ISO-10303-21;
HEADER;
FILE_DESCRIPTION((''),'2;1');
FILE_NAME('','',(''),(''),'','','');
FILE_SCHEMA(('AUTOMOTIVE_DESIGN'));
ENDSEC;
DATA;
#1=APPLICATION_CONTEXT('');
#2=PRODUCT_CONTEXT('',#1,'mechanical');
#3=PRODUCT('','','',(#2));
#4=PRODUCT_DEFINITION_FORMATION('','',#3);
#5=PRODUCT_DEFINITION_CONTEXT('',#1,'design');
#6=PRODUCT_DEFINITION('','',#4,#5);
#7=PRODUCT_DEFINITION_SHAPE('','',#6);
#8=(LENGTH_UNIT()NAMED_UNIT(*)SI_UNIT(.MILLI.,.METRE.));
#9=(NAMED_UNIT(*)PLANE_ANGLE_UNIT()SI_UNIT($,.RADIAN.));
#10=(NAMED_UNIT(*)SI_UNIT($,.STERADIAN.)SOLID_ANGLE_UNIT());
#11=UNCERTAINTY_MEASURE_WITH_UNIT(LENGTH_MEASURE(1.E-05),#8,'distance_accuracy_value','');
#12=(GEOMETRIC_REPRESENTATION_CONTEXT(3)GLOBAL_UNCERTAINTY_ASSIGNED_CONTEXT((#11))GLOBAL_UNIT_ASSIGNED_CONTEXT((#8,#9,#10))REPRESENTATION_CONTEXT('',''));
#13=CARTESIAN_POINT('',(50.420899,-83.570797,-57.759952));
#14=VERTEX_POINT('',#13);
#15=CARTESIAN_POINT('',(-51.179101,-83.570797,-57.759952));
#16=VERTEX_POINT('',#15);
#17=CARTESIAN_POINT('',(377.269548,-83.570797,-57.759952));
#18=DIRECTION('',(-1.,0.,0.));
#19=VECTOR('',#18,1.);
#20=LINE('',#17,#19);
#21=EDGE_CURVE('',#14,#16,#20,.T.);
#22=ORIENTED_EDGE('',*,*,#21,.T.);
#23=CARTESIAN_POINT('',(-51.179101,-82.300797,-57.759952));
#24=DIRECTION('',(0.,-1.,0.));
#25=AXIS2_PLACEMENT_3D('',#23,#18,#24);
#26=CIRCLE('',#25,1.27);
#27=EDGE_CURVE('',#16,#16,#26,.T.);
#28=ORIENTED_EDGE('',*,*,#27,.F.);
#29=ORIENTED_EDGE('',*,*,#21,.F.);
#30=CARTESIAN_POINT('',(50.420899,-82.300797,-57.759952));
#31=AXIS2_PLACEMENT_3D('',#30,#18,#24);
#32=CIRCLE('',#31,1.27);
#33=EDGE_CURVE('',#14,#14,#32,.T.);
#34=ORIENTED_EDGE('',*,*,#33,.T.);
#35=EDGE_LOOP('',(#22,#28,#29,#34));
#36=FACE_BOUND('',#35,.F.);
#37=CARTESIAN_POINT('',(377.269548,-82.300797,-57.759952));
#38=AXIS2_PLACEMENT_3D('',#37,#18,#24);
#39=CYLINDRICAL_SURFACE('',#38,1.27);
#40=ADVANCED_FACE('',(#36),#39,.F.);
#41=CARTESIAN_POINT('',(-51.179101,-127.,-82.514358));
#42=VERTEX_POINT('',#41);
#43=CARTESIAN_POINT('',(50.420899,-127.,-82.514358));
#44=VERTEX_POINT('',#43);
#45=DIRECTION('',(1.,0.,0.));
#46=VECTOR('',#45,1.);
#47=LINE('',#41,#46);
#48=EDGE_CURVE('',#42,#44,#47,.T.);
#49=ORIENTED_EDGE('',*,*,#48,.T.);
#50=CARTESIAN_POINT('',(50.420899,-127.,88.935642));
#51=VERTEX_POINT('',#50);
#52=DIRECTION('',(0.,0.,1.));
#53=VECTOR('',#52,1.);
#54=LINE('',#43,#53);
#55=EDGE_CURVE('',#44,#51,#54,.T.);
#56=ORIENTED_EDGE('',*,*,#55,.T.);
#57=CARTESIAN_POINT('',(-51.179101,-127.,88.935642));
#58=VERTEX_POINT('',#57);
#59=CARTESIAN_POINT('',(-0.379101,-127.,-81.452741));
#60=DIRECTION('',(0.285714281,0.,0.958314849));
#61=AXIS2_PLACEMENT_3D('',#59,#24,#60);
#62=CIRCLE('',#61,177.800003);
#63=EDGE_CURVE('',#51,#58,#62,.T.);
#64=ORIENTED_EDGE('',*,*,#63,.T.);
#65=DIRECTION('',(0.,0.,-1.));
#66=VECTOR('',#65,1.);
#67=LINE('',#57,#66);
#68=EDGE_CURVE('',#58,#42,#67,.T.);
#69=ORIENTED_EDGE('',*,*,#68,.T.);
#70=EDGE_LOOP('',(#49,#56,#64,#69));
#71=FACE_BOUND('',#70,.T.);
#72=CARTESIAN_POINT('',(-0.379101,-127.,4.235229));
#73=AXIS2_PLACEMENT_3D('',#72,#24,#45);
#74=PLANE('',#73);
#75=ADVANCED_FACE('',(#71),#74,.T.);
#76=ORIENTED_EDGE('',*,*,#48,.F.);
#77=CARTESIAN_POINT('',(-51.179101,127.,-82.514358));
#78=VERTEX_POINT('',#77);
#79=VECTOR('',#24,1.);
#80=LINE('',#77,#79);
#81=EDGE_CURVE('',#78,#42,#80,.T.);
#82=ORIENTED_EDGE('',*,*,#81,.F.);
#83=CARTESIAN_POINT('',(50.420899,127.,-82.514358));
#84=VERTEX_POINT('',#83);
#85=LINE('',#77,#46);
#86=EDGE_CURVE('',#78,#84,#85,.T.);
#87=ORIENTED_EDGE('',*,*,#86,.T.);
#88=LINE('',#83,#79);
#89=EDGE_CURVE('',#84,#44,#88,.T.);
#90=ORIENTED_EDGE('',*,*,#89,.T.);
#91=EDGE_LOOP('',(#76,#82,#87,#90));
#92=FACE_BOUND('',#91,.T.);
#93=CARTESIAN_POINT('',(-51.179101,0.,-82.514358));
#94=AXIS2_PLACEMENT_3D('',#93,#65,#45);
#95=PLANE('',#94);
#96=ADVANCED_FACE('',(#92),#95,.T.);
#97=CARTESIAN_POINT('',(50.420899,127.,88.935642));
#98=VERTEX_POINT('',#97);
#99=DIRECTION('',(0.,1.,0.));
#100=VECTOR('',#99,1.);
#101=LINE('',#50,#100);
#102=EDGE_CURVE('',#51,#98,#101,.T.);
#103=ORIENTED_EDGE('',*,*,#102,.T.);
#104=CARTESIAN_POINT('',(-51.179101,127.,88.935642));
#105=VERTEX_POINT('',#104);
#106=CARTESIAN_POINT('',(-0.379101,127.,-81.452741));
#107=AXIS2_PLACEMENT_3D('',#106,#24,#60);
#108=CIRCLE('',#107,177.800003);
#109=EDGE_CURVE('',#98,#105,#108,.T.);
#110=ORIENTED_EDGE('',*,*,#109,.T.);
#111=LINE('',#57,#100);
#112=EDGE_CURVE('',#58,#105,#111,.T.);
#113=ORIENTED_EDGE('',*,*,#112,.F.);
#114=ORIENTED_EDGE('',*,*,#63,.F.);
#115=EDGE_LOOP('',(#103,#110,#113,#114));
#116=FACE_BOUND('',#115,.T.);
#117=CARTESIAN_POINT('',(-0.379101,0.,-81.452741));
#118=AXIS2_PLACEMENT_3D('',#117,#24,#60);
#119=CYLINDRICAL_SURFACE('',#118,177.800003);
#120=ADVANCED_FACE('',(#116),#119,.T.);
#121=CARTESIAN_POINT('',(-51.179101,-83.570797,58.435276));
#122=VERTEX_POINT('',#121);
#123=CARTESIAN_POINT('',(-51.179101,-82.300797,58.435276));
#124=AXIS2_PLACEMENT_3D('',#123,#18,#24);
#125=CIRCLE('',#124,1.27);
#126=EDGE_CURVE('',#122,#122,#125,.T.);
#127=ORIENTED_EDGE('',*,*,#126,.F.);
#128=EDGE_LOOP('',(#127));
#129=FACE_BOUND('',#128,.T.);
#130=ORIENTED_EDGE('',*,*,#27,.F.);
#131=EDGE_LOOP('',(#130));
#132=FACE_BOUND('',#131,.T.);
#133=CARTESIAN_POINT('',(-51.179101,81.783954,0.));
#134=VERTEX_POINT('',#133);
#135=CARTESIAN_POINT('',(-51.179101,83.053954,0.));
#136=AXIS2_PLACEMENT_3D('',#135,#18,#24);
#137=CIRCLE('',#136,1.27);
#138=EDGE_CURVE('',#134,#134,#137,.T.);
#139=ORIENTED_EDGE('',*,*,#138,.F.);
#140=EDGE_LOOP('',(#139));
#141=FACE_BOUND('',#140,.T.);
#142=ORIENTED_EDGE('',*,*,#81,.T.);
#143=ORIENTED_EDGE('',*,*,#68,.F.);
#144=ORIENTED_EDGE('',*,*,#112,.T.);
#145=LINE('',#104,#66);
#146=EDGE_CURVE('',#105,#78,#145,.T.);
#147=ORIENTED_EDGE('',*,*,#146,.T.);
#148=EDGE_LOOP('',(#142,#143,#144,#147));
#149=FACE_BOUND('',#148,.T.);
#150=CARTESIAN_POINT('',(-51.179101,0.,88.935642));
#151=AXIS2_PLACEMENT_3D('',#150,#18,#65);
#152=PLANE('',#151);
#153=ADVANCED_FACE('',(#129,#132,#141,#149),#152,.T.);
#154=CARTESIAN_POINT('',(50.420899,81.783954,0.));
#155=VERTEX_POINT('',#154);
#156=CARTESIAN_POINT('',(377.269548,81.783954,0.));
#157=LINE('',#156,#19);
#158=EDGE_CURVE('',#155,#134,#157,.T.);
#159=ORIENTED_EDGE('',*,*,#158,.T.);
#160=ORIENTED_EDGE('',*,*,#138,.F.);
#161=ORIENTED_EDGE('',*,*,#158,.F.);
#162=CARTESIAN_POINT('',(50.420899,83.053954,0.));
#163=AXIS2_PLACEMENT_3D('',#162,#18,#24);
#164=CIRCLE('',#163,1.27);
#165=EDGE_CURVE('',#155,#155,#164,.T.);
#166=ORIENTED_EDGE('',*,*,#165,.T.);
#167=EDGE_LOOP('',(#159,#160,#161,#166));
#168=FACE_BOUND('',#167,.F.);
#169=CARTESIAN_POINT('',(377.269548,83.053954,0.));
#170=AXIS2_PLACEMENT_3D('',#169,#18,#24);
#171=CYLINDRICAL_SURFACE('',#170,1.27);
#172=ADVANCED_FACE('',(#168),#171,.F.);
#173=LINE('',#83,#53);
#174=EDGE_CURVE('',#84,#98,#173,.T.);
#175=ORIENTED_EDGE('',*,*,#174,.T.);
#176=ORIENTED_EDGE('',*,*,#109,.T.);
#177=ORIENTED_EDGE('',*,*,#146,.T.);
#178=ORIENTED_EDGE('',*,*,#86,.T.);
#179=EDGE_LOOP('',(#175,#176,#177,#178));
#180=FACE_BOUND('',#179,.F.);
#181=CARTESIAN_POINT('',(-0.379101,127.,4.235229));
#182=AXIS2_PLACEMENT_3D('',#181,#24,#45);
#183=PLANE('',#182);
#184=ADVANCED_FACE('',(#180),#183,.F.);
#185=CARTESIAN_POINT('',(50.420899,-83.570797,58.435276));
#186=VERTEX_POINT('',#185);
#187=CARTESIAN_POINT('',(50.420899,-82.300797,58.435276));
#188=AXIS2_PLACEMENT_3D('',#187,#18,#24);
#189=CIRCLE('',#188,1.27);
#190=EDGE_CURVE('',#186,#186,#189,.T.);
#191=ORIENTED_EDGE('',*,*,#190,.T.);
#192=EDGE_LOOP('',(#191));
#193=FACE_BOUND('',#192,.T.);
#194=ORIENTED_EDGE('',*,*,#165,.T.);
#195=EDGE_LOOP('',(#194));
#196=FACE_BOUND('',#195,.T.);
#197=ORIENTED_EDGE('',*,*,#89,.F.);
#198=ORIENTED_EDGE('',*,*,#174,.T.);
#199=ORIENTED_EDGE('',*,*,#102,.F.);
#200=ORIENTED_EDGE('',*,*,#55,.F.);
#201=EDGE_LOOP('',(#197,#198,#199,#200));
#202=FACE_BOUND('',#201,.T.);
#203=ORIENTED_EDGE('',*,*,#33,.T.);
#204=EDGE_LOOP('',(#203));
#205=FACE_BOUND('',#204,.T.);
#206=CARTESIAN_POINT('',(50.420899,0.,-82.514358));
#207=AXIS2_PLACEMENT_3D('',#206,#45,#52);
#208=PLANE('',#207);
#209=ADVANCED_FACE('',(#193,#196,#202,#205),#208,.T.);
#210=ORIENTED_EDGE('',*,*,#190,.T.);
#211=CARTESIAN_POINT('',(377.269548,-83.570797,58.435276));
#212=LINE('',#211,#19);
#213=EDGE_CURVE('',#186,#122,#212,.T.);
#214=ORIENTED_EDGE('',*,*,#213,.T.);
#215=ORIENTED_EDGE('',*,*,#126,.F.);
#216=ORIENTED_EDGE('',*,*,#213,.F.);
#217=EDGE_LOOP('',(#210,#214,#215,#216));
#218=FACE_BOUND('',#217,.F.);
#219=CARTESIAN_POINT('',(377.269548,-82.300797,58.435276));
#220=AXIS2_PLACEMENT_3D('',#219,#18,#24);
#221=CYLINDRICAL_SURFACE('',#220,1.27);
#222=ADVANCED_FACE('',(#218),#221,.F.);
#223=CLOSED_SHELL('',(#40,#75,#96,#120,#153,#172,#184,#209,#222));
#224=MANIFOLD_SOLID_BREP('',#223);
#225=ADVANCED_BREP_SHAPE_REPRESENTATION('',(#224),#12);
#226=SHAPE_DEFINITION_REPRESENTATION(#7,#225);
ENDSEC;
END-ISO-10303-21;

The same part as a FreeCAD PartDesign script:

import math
import FreeCAD as App
import Part
import Sketcher

V = App.Vector
Q = App.Units.Quantity

doc = App.newDocument("Part")
body = doc.addObject("PartDesign::Body", "Body")

# Sketch on XZ plane
sketch1 = doc.addObject("Sketcher::SketchObject", "Sketch")
body.addObject(sketch1)
sketch1.AttachmentSupport = (doc.XZ_Plane, [""])
sketch1.MapMode = "FlatFace"
sketch1.addGeometry([
    Part.LineSegment(V(-51, 89, 0), V(-51, -83, 0)),
    Part.LineSegment(V(-51, -83, 0), V(50, -83, 0)),
    Part.LineSegment(V(50, -83, 0), V(50, 89, 0)),
    Part.ArcOfCircle(Part.Circle(V(0, -81, 0), V(0, 0, 1), 178), math.radians(73), math.radians(107)),
], False)
sketch1.addConstraint([
    Sketcher.Constraint("Coincident", 0, 2, 1, 1),
    Sketcher.Constraint("Coincident", 1, 2, 2, 1),
    Sketcher.Constraint("Coincident", 2, 2, 3, 1),
    Sketcher.Constraint("Coincident", 3, 2, 0, 1),
    Sketcher.Constraint("Vertical", 0),
    Sketcher.Constraint("Horizontal", 1),
    Sketcher.Constraint("Vertical", 2),
    Sketcher.Constraint("Horizontal", 2, 2, 3, 2),
    Sketcher.Constraint("Radius", 3, Q("7.0000001 in")),
    Sketcher.Constraint("DistanceX", 1, 1, 1, 2, Q("4 in")),
    Sketcher.Constraint("DistanceY", 0, 2, 0, 1, Q("6.75 in")),
    Sketcher.Constraint("DistanceX", 3, 3, -1, 1, Q("0.379101 mm")),
    Sketcher.Constraint("DistanceY", 3, 3, -1, 1, Q("81.452741 mm")),
])
pad1 = doc.addObject("PartDesign::Pad", "Pad")
body.addObject(pad1)
pad1.Profile = sketch1
pad1.Length = Q("10 in")
pad1.Midplane = True

# Sketch on YZ plane
sketch2 = doc.addObject("Sketcher::SketchObject", "Sketch001")
body.addObject(sketch2)
sketch2.AttachmentSupport = (doc.YZ_Plane, [""])
sketch2.MapMode = "FlatFace"
sketch2.AttachmentOffset = App.Placement(V(0, 0, 50.420899), App.Rotation())
sketch2.addGeometry([
    Part.Circle(V(-82.3, 58.4, 0), V(0, 0, 1), 1.3),
    Part.Circle(V(-82.3, -57.8, 0), V(0, 0, 1), 1.3),
    Part.Circle(V(83.1, 0, 0), V(0, 0, 1), 1.3),
], False)
sketch2.addConstraint([
    Sketcher.Constraint("Equal", 0, 1),
    Sketcher.Constraint("Equal", 1, 2),
    Sketcher.Constraint("PointOnObject", 2, 3, -1),
    Sketcher.Constraint("Vertical", 0, 3, 1, 3),
    Sketcher.Constraint("Diameter", 0, Q("0.1 in")),
    Sketcher.Constraint("DistanceY", 1, 3, -1, 1, Q("57.759952 mm")),
    Sketcher.Constraint("DistanceY", 1, 3, 0, 3, Q("116.195228 mm")),
    Sketcher.Constraint("DistanceX", 1, 3, 2, 3, Q("165.354751 mm")),
    Sketcher.Constraint("DistanceX", 0, 3, -1, 1, Q("82.300797 mm")),
])
doc.recompute()
hole = doc.addObject("PartDesign::Hole", "Hole")
body.addObject(hole)
hole.Profile = sketch2
hole.ThreadType = "None"
hole.Diameter = Q("0.1 in")
hole.DepthType = "ThroughAll"

doc.recompute()
